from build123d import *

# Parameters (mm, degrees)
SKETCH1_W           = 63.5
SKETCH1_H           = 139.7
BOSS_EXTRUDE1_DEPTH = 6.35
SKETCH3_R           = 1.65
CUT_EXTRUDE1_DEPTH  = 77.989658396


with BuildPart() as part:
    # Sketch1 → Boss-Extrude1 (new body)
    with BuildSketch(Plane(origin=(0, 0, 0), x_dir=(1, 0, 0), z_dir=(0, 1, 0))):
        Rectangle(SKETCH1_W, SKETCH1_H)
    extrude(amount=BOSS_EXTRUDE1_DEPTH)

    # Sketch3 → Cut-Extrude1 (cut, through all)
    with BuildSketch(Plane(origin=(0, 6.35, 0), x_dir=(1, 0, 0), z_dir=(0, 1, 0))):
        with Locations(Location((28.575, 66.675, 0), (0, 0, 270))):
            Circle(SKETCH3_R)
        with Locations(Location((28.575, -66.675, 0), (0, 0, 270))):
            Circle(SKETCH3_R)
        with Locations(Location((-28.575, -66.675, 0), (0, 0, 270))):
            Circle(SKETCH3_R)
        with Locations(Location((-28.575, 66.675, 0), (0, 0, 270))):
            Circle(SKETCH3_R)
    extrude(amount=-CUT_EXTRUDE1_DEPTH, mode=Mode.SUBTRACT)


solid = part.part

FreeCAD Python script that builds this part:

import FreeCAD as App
import Part
import Sketcher

V = App.Vector
Q = App.Units.Quantity


def add_polygon(sketch, points):
    """Adds a closed chain of lines whose ends are joined by coincident constraints."""
    first, n = sketch.GeometryCount, len(points)
    for a, b in zip(points, points[1:] + points[:1]):
        sketch.addGeometry(Part.LineSegment(App.Vector(*a, 0), App.Vector(*b, 0)), False)
    for i in range(n):
        sketch.addConstraint(Sketcher.Constraint("Coincident", first + i, 2, first + (i + 1) % n, 1))

doc = App.newDocument("Part")
body = doc.addObject("PartDesign::Body", "Body")

# Sketch on XZ plane
sketch1 = doc.addObject("Sketcher::SketchObject", "Sketch")
body.addObject(sketch1)
sketch1.AttachmentSupport = (doc.XZ_Plane, [""])
sketch1.MapMode = "FlatFace"
add_polygon(sketch1, [(-32, -70), (-32, 70), (32, 70), (32, -70)])  # lines 0-3
sketch1.addConstraint([
    Sketcher.Constraint("Vertical", 0),
    Sketcher.Constraint("Horizontal", 1),
    Sketcher.Constraint("Vertical", 2),
    Sketcher.Constraint("Horizontal", 3),
    Sketcher.Constraint("Symmetric", 0, 2, 2, 2, -1, 1),
    Sketcher.Constraint("DistanceX", 1, 1, 1, 2, Q("2.5 in")),
    Sketcher.Constraint("DistanceY", 0, 1, 0, 2, Q("5.5 in")),
])
pad1 = doc.addObject("PartDesign::Pad", "Pad")
body.addObject(pad1)
pad1.Profile = sketch1
pad1.Length = Q("0.25 in")
pad1.Reversed = True

# Sketch on XZ plane
sketch2 = doc.addObject("Sketcher::SketchObject", "Sketch001")
body.addObject(sketch2)
sketch2.AttachmentSupport = (doc.XZ_Plane, [""])
sketch2.MapMode = "FlatFace"
sketch2.AttachmentOffset = App.Placement(V(0, 0, -0.25 * 25.4), App.Rotation())
sketch2.addGeometry([
    Part.Circle(V(28.6, -66.7, 0), V(0, 0, 1), 1.6),
    Part.Circle(V(28.6, 66.7, 0), V(0, 0, 1), 1.6),
    Part.Circle(V(-28.6, 66.7, 0), V(0, 0, 1), 1.6),
    Part.Circle(V(-28.6, -66.7, 0), V(0, 0, 1), 1.6),
], False)
sketch2.addConstraint([
    Sketcher.Constraint("Equal", 0, 1),
    Sketcher.Constraint("Equal", 1, 2),
    Sketcher.Constraint("Equal", 2, 3),
    Sketcher.Constraint("Symmetric", 0, 3, 2, 3, -1, 1),
    Sketcher.Constraint("Symmetric", 1, 3, 3, 3, -1, 1),
    Sketcher.Constraint("Symmetric", 1, 3, 2, 3, -2),
    Sketcher.Constraint("Diameter", 0, Q("3.3 mm")),
    Sketcher.Constraint("DistanceY", 0, 3, 1, 3, Q("5.25 in")),
    Sketcher.Constraint("DistanceX", 2, 3, 1, 3, Q("2.25 in")),
])
pocket1 = doc.addObject("PartDesign::Pocket", "Pocket")
body.addObject(pocket1)
pocket1.Profile = sketch2
pocket1.Type = "ThroughAll"
pocket1.Reversed = True

doc.recompute()
